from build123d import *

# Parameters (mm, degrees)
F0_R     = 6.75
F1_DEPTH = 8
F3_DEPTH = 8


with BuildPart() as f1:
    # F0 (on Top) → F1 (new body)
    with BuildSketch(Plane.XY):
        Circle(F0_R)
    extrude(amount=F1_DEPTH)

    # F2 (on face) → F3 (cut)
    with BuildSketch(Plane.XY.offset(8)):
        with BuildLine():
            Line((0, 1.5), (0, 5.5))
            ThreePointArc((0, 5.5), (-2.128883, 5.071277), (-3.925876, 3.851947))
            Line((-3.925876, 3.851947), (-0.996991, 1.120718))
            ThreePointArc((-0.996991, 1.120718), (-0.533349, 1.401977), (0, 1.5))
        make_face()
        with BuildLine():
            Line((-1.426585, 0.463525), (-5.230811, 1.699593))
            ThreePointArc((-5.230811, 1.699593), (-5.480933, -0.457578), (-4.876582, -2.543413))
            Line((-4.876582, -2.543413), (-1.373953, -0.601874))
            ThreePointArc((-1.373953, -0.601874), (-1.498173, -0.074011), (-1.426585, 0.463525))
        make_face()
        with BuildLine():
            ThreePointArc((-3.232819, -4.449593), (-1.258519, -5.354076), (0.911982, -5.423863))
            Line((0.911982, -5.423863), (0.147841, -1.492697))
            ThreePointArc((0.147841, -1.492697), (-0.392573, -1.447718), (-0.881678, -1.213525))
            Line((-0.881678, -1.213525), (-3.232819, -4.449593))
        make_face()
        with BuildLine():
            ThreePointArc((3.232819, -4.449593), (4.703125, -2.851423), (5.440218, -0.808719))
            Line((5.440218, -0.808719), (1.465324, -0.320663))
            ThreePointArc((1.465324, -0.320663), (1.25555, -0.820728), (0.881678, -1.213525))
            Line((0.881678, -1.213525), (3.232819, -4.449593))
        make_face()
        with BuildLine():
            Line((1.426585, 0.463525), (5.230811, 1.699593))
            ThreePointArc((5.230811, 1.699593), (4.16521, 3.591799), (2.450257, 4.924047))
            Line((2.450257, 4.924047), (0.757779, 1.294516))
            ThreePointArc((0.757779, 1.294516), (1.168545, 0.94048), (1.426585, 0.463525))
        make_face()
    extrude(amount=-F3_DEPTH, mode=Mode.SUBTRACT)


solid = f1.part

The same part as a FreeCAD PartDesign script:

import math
import FreeCAD as App
import Part
import Sketcher

V = App.Vector
Q = App.Units.Quantity

doc = App.newDocument("Part")
body = doc.addObject("PartDesign::Body", "Body")

# Sketch on XY plane
sketch1 = body.newObject("Sketcher::SketchObject", "Sketch")
sketch1.AttachmentSupport = (doc.getObject("XY_Plane"), [""])
sketch1.MapMode = "FlatFace"
sketch1.addGeometry(Part.Circle(V(0, 0, 0), V(0, 0, 1), 6.75), False)
sketch1.addConstraint(Sketcher.Constraint("Coincident", 0, 3, -1, 1))
sketch1.addConstraint(Sketcher.Constraint("Diameter", 0, Q("13.5 mm")))
pad1 = body.newObject("PartDesign::Pad", "Pad")
pad1.Profile = sketch1
pad1.Length = 8

# Sketch on XY plane
sketch2 = body.newObject("Sketcher::SketchObject", "Sketch001")
sketch2.AttachmentSupport = (doc.getObject("XY_Plane"), [""])
sketch2.MapMode = "FlatFace"
sketch2.AttachmentOffset = App.Placement(V(0, 0, 8), App.Rotation())
sketch2.addGeometry(Part.LineSegment(V(0, 1.5, 0), V(0, 5.5, 0)), False)
sketch2.addGeometry(Part.ArcOfCircle(Part.Circle(V(0.000003, -0.000006, 0), V(0, 0, 1), 5.500006), math.radians(90.000029), math.radians(135.544561)), False)
sketch2.addGeometry(Part.LineSegment(V(-3.925876, 3.851947, 0), V(-0.996991, 1.120718, 0)), False)
sketch2.addGeometry(Part.ArcOfCircle(Part.Circle(V(-0.000001, 0.000003, 0), V(0, 0, 1), 1.499997), math.radians(89.999952), math.radians(131.656351)), False)
sketch2.addGeometry(Part.LineSegment(V(-1.426585, 0.463525, 0), V(-5.230811, 1.699593, 0)), False)
sketch2.addGeometry(Part.ArcOfCircle(Part.Circle(V(-0.000004, -0.000001, 0), V(0, 0, 1), 5.499997), math.radians(161.999988), math.radians(207.544599)), False)
sketch2.addGeometry(Part.LineSegment(V(-4.876582, -2.543413, 0), V(-1.373953, -0.601874, 0)), False)
sketch2.addGeometry(Part.ArcOfCircle(Part.Circle(V(-0.000002, 0, 0), V(0, 0, 1), 1.499998), math.radians(162.000017), math.radians(203.656346)), False)
sketch2.addGeometry(Part.ArcOfCircle(Part.Circle(V(0, -0.000001, 0), V(0, 0, 1), 5.499999), math.radians(-126.000014), math.radians(-80.455423)), False)
sketch2.addGeometry(Part.LineSegment(V(0.911982, -5.423863, 0), V(0.147841, -1.492697, 0)), False)
sketch2.addGeometry(Part.ArcOfCircle(Part.Circle(V(0, -0.000004, 0), V(0, 0, 1), 1.499996), math.radians(-126.000109), math.radians(-84.34369)), False)
sketch2.addGeometry(Part.LineSegment(V(-0.881678, -1.213525, 0), V(-3.232819, -4.449593, 0)), False)
sketch2.addGeometry(Part.ArcOfCircle(Part.Circle(V(0.000001, 0, 0), V(0, 0, 1), 5.499999), math.radians(-54), math.radians(-8.455418)), False)
sketch2.addGeometry(Part.LineSegment(V(5.440218, -0.808719, 0), V(1.465324, -0.320663, 0)), False)
sketch2.addGeometry(Part.ArcOfCircle(Part.Circle(V(0.000005, -0.000003, 0), V(0, 0, 1), 1.499994), math.radians(-54.000068), math.radians(-12.343614)), False)
sketch2.addGeometry(Part.LineSegment(V(0.881678, -1.213525, 0), V(3.232819, -4.449593, 0)), False)
sketch2.addGeometry(Part.LineSegment(V(1.426585, 0.463525, 0), V(5.230811, 1.699593, 0)), False)
sketch2.addGeometry(Part.ArcOfCircle(Part.Circle(V(-0.000004, -0.000004, 0), V(0, 0, 1), 5.500005), math.radians(18.000019), math.radians(63.544564)), False)
sketch2.addGeometry(Part.LineSegment(V(2.450257, 4.924047, 0), V(0.757779, 1.294516, 0)), False)
sketch2.addGeometry(Part.ArcOfCircle(Part.Circle(V(-0.000002, -0.000001, 0), V(0, 0, 1), 1.500002), math.radians(17.999998), math.radians(59.656269)), False)
sketch2.addConstraint(Sketcher.Constraint("Coincident", 0, 2, 1, 1))
sketch2.addConstraint(Sketcher.Constraint("Coincident", 1, 2, 2, 1))
sketch2.addConstraint(Sketcher.Constraint("Coincident", 2, 2, 3, 2))
sketch2.addConstraint(Sketcher.Constraint("Coincident", 3, 1, 0, 1))
sketch2.addConstraint(Sketcher.Constraint("Coincident", 4, 2, 5, 1))
sketch2.addConstraint(Sketcher.Constraint("Coincident", 5, 2, 6, 1))
sketch2.addConstraint(Sketcher.Constraint("Coincident", 6, 2, 7, 2))
sketch2.addConstraint(Sketcher.Constraint("Coincident", 7, 1, 4, 1))
sketch2.addConstraint(Sketcher.Constraint("Coincident", 8, 2, 9, 1))
sketch2.addConstraint(Sketcher.Constraint("Coincident", 9, 2, 10, 2))
sketch2.addConstraint(Sketcher.Constraint("Coincident", 10, 1, 11, 1))
sketch2.addConstraint(Sketcher.Constraint("Coincident", 11, 2, 8, 1))
sketch2.addConstraint(Sketcher.Constraint("Coincident", 12, 2, 13, 1))
sketch2.addConstraint(Sketcher.Constraint("Coincident", 13, 2, 14, 2))
sketch2.addConstraint(Sketcher.Constraint("Coincident", 14, 1, 15, 1))
sketch2.addConstraint(Sketcher.Constraint("Coincident", 15, 2, 12, 1))
sketch2.addConstraint(Sketcher.Constraint("Coincident", 16, 2, 17, 1))
sketch2.addConstraint(Sketcher.Constraint("Coincident", 17, 2, 18, 1))
sketch2.addConstraint(Sketcher.Constraint("Coincident", 18, 2, 19, 2))
sketch2.addConstraint(Sketcher.Constraint("Coincident", 19, 1, 16, 1))
sketch2.addConstraint(Sketcher.Constraint("Vertical", 0))
sketch2.addConstraint(Sketcher.Constraint("Coincident", 1, 3, -1, 1))
sketch2.addConstraint(Sketcher.Constraint("Coincident", 3, 3, -1, 1))
sketch2.addConstraint(Sketcher.Constraint("Coincident", 5, 3, -1, 1))
sketch2.addConstraint(Sketcher.Constraint("Coincident", 7, 3, -1, 1))
sketch2.addConstraint(Sketcher.Constraint("Coincident", 8, 3, -1, 1))
sketch2.addConstraint(Sketcher.Constraint("Coincident", 10, 3, -1, 1))
sketch2.addConstraint(Sketcher.Constraint("Coincident", 12, 3, -1, 1))
sketch2.addConstraint(Sketcher.Constraint("Coincident", 14, 3, -1, 1))
sketch2.addConstraint(Sketcher.Constraint("Coincident", 17, 3, -1, 1))
sketch2.addConstraint(Sketcher.Constraint("Coincident", 19, 3, -1, 1))
sketch2.addConstraint(Sketcher.Constraint("Equal", 3, 7))
sketch2.addConstraint(Sketcher.Constraint("Equal", 3, 10))
sketch2.addConstraint(Sketcher.Constraint("Equal", 8, 12))
sketch2.addConstraint(Sketcher.Constraint("Equal", 10, 14))
sketch2.addConstraint(Sketcher.Constraint("Equal", 1, 17))
sketch2.addConstraint(Sketcher.Constraint("Symmetric", 4, 2, 16, 2, -2))
sketch2.addConstraint(Sketcher.Constraint("Symmetric", 7, 1, 19, 1, -2))
sketch2.addConstraint(Sketcher.Constraint("PointOnObject", 0, 2, -2))
sketch2.addConstraint(Sketcher.Constraint("Horizontal", 10, 1, 14, 1))
sketch2.addConstraint(Sketcher.Constraint("Horizontal", 11, 2, 15, 2))
sketch2.addConstraint(Sketcher.Constraint("Equal", 2, 6))
sketch2.addConstraint(Sketcher.Constraint("Equal", 6, 9))
sketch2.addConstraint(Sketcher.Constraint("Equal", 4, 11))
sketch2.addConstraint(Sketcher.Constraint("Equal", 9, 13))
sketch2.addConstraint(Sketcher.Constraint("Equal", 13, 18))
sketch2.addConstraint(Sketcher.Constraint("Radius", 7, Q("1.499998 mm")))
sketch2.addConstraint(Sketcher.Constraint("Radius", 8, Q("5.499999 mm")))
sketch2.addConstraint(Sketcher.Constraint("Angle", 2, Q("-42.999995 deg")))
sketch2.addConstraint(Sketcher.Constraint("Angle", 4, Q("161.999999 deg")))
sketch2.addConstraint(Sketcher.Constraint("Angle", 6, Q("29.000001 deg")))
sketch2.addConstraint(Sketcher.Constraint("Angle", 9, Q("100.999996 deg")))
sketch2.addConstraint(Sketcher.Constraint("Angle", 11, Q("-126 deg")))
sketch2.addConstraint(Sketcher.Constraint("Angle", 13, Q("172.999995 deg")))
sketch2.addConstraint(Sketcher.Constraint("Angle", 18, Q("-114.999999 deg")))
sketch2.addConstraint(Sketcher.Constraint("DistanceY", 6, 2, 7, 1, Q("1.065399 mm")))
sketch2.addConstraint(Sketcher.Constraint("DistanceX", 11, 2, 8, 2, Q("4.144801 mm")))
sketch2.addConstraint(Sketcher.Constraint("DistanceX", 15, 2, 12, 2, Q("2.207399 mm")))
pocket1 = body.newObject("PartDesign::Pocket", "Pocket")
pocket1.Profile = sketch2
pocket1.Length = 8

doc.recompute()
